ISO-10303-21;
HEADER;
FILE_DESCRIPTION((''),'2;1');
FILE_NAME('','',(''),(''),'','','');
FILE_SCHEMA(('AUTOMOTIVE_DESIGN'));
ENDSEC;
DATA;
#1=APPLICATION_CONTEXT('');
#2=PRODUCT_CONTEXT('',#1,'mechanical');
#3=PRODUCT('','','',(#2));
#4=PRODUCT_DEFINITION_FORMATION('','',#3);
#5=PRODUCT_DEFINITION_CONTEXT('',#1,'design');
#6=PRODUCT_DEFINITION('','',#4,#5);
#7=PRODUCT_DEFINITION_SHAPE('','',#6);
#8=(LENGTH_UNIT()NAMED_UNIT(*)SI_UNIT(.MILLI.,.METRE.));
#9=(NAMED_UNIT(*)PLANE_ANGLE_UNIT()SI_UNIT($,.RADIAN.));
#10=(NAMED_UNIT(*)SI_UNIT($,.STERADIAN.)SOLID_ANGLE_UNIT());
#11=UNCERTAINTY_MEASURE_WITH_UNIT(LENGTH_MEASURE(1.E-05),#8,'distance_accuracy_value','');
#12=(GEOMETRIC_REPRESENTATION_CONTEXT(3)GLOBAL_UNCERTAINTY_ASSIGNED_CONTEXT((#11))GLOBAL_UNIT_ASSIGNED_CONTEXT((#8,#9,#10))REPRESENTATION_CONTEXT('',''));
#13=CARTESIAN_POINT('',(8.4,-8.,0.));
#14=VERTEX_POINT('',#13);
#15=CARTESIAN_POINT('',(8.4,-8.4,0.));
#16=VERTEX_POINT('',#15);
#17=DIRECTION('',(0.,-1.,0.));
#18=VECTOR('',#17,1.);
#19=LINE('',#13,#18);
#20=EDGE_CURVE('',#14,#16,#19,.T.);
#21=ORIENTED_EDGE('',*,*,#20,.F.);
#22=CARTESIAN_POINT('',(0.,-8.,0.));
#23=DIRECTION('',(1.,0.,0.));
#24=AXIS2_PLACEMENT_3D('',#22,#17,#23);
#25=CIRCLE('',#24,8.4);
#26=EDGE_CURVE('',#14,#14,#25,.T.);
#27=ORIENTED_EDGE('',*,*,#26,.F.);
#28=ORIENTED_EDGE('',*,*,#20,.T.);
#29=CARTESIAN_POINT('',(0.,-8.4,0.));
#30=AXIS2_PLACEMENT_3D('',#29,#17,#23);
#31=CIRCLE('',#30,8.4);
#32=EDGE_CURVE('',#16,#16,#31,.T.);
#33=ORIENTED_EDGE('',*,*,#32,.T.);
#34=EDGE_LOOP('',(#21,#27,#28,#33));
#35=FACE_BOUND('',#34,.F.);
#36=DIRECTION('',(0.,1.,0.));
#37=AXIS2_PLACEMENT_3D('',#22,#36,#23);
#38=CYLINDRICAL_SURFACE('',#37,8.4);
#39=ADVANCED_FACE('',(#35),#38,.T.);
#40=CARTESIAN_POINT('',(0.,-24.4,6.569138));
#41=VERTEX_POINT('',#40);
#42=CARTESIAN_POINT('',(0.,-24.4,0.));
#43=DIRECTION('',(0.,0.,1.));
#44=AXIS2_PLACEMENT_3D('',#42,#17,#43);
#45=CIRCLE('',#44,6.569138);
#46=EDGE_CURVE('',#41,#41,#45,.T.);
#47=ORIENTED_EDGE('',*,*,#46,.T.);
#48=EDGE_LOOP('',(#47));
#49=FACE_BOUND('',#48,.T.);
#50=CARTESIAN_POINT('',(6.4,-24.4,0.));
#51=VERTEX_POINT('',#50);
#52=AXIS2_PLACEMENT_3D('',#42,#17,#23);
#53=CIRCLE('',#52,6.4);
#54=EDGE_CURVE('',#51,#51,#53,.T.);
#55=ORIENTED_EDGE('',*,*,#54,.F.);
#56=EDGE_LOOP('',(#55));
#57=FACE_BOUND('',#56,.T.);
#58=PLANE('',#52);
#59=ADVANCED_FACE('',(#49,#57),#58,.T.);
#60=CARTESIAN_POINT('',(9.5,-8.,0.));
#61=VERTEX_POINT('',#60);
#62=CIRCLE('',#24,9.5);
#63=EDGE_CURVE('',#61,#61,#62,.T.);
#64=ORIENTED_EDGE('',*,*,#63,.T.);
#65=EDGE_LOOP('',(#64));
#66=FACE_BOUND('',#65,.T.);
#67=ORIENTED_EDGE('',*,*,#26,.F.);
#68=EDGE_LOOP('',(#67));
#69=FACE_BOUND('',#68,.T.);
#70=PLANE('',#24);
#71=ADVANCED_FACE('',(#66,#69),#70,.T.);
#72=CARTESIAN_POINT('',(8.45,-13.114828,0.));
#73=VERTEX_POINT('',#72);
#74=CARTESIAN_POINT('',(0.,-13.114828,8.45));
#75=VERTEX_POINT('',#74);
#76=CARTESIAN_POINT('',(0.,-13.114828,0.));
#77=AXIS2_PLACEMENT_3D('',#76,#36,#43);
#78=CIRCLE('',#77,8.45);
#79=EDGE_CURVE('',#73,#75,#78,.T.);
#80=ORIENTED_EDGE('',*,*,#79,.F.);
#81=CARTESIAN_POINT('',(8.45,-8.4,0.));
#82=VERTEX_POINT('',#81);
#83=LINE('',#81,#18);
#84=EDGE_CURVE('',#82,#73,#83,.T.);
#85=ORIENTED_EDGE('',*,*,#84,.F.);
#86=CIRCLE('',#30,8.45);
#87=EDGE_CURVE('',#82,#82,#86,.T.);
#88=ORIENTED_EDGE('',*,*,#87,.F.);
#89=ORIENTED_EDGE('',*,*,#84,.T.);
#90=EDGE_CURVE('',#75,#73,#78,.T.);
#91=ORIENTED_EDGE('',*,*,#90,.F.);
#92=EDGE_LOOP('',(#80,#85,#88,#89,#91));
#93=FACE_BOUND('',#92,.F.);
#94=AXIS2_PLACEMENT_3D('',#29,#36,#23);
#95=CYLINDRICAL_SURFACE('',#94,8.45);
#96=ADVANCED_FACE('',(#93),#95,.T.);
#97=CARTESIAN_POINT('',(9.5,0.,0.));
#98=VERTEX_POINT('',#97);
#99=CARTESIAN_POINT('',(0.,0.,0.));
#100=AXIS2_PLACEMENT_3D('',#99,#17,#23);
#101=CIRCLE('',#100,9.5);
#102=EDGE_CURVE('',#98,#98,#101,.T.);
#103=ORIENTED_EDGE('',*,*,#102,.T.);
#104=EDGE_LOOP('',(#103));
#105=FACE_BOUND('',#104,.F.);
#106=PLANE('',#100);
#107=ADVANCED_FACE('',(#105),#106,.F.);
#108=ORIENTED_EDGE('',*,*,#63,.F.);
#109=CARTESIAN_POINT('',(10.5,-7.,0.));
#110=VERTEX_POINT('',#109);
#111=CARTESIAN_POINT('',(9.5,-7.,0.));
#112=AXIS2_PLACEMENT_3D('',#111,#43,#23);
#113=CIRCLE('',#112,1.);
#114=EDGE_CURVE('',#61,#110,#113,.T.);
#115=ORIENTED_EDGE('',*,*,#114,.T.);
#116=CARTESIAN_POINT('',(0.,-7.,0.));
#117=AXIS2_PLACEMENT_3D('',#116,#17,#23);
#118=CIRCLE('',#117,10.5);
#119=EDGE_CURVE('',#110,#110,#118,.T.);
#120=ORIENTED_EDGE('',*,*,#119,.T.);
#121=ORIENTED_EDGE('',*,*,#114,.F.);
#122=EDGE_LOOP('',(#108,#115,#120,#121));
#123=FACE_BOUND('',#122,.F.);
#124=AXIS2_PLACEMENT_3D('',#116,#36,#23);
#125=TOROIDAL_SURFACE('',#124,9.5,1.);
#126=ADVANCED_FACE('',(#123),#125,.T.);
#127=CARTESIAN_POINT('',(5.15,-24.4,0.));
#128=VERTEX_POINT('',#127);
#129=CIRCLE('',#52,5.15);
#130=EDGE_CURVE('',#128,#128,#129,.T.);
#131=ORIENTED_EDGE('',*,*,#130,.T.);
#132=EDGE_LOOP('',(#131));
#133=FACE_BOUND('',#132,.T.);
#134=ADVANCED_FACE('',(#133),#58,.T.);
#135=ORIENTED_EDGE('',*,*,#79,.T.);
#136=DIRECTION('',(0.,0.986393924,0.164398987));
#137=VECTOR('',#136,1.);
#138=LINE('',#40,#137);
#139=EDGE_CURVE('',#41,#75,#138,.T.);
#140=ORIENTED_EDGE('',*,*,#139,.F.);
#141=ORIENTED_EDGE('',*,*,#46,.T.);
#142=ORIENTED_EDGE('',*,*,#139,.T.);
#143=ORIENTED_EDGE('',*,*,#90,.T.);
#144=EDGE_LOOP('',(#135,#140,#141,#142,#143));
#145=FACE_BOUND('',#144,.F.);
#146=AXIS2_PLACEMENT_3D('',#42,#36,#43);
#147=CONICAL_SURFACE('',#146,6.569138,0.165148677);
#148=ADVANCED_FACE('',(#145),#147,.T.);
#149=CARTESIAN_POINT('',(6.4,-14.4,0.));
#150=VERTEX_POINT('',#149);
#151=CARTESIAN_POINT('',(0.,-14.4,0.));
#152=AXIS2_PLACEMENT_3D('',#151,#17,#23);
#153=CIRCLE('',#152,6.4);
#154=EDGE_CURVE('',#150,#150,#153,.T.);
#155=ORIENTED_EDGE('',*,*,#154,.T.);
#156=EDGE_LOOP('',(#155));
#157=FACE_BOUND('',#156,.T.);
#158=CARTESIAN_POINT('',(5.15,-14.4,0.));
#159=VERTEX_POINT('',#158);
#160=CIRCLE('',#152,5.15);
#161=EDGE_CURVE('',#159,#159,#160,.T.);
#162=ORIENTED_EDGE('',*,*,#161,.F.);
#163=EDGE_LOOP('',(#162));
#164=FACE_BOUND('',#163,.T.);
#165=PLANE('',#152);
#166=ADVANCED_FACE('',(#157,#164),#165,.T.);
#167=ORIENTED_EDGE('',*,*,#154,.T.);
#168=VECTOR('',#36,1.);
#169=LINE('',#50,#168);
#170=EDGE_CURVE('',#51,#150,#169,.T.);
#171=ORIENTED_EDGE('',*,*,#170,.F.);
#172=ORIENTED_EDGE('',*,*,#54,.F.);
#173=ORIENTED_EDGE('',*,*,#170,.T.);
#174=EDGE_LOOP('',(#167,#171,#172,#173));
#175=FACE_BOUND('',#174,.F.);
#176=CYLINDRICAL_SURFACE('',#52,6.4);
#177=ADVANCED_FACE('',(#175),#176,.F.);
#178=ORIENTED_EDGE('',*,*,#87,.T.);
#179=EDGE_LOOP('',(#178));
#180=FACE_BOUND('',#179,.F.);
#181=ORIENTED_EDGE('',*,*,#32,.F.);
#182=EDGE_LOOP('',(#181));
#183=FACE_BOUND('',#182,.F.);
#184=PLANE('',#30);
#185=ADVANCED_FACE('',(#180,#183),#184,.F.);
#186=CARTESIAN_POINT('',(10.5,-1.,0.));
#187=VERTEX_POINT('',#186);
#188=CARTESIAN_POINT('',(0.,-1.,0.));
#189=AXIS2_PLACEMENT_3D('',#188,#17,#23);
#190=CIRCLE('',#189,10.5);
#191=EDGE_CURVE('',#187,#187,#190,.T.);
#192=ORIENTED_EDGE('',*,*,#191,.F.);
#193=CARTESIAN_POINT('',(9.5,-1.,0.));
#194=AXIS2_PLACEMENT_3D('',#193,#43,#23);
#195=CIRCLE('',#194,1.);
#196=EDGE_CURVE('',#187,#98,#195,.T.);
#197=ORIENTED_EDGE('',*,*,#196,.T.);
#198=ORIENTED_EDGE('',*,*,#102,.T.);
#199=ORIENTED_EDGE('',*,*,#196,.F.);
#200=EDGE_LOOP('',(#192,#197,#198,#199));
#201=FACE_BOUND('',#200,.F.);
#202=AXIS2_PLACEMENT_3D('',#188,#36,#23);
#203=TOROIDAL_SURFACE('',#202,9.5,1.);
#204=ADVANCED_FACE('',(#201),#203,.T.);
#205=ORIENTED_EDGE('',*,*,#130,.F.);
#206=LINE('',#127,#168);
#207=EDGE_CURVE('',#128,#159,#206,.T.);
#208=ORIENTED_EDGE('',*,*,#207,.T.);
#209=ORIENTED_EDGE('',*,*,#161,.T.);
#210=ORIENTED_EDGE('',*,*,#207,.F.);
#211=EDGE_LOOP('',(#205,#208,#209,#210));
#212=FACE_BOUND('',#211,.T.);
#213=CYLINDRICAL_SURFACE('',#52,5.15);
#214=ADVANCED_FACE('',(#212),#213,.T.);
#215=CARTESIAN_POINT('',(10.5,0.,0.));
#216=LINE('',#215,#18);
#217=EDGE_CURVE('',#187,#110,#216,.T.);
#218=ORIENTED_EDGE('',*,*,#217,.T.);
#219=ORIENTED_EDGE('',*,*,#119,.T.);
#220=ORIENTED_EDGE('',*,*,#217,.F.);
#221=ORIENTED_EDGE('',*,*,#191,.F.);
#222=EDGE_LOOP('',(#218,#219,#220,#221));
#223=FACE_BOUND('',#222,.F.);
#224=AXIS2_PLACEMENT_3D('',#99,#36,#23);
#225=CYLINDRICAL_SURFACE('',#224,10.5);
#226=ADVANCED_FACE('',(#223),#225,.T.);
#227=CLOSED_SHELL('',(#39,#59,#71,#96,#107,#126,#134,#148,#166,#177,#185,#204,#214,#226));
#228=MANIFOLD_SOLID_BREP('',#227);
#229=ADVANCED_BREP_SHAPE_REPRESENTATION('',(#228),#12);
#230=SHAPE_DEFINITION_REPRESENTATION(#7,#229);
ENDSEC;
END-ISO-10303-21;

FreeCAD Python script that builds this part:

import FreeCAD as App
import Part
import Sketcher
from FreeCAD import Vector


def edges_at(feature, points):
    """Names of the edges that pass closest to the given points."""
    edges = feature.Shape.Edges
    near = lambda p: min(range(len(edges)), key=lambda i: edges[i].distToShape(Part.Vertex(*p))[0])
    return sorted({f"Edge{near(p) + 1}" for p in points})


def add_polygon(sketch, points):
    """Adds a closed chain of lines whose ends are joined by coincident constraints."""
    first, n = sketch.GeometryCount, len(points)
    for a, b in zip(points, points[1:] + points[:1]):
        sketch.addGeometry(Part.LineSegment(App.Vector(*a, 0), App.Vector(*b, 0)), False)
    for i in range(n):
        sketch.addConstraint(Sketcher.Constraint("Coincident", first + i, 2, first + (i + 1) % n, 1))

doc = App.newDocument("Part")
body = doc.addObject("PartDesign::Body", "Body")

# Sketch on XZ plane
sketch1 = body.newObject("Sketcher::SketchObject", "Sketch")
sketch1.AttachmentSupport = (doc.getObject("XZ_Plane"), [""])
sketch1.MapMode = "FlatFace"
sketch1.addGeometry(Part.Circle(Vector(0, 0, 0), Vector(0, 0, 1), 10), False)
sketch1.addConstraint([
    Sketcher.Constraint("Coincident", 0, 3, -1, 1),
    Sketcher.Constraint("Diameter", 0, 21.0),
])
pad1 = body.newObject("PartDesign::Pad", "Pad")
pad1.Profile = sketch1
pad1.Length = 8

# Sketch on XZ plane
sketch2 = body.newObject("Sketcher::SketchObject", "Sketch001")
sketch2.AttachmentSupport = (doc.getObject("XZ_Plane"), [""])
sketch2.MapMode = "FlatFace"
sketch2.AttachmentOffset = App.Placement(Vector(0, 0, 8), App.Rotation())
sketch2.addGeometry(Part.Circle(Vector(0, 0, 0), Vector(0, 0, 1), 8), False)
sketch2.addConstraint([
    Sketcher.Constraint("Coincident", 0, 3, -1, 1),
    Sketcher.Constraint("Diameter", 0, 16.8),
])
pad2 = body.newObject("PartDesign::Pad", "Pad001")
pad2.Profile = sketch2
pad2.Length = 0.4

# Sketch on XZ plane
sketch3 = body.newObject("Sketcher::SketchObject", "Sketch002")
sketch3.AttachmentSupport = (doc.getObject("XZ_Plane"), [""])
sketch3.MapMode = "FlatFace"
sketch3.AttachmentOffset = App.Placement(Vector(0, 0, 8.4), App.Rotation())
sketch3.addGeometry(Part.Circle(Vector(0, 0, 0), Vector(0, 0, 1), 8), False)
sketch3.addConstraint([
    Sketcher.Constraint("Coincident", 0, 3, -1, 1),
    Sketcher.Constraint("Diameter", 0, 16.9),
])
pad3 = body.newObject("PartDesign::Pad", "Pad002")
pad3.Profile = sketch3
pad3.Length = 16

# Sketch on XZ plane
sketch4 = body.newObject("Sketcher::SketchObject", "Sketch003")
sketch4.AttachmentSupport = (doc.getObject("XZ_Plane"), [""])
sketch4.MapMode = "FlatFace"
sketch4.AttachmentOffset = App.Placement(Vector(0, 0, 24.4), App.Rotation())
sketch4.addGeometry([
    Part.Circle(Vector(0, 0, 0), Vector(0, 0, 1), 6),
    Part.Circle(Vector(0, 0, 0), Vector(0, 0, 1), 5),
], False)
sketch4.addConstraint([
    Sketcher.Constraint("Coincident", 0, 3, -1, 1),
    Sketcher.Constraint("Coincident", 1, 3, -1, 1),
    Sketcher.Constraint("Diameter", 0, 12.8),
    Sketcher.Constraint("Diameter", 1, 10.3),
])
pocket1 = body.newObject("PartDesign::Pocket", "Pocket")
pocket1.Profile = sketch4
pocket1.Length = 10

# Sketch on YZ plane
sketch5 = body.newObject("Sketcher::SketchObject", "Sketch004")
sketch5.AttachmentSupport = (doc.getObject("YZ_Plane"), [""])
sketch5.MapMode = "FlatFace"
add_polygon(sketch5, [(-12.4, 8.6), (-24.4, 8.6), (-24.4, 6.6)])  # lines 0-2
sketch5.addConstraint([
    Sketcher.Constraint("Horizontal", 0),
    Sketcher.Constraint("Vertical", 1),
    Sketcher.Constraint("DistanceX", 0, 2, 0, 1, 12.0),
    Sketcher.Constraint("DistanceY", 1, 2, 1, 1, 2.0),
    Sketcher.Constraint("DistanceX", 0, 2, -1, 1, 24.4),
    Sketcher.Constraint("DistanceY", -1, 1, 0, 2, 8.569138),
])
groove = body.newObject("PartDesign::Groove", "Groove")
groove.Profile = sketch5
groove.ReferenceAxis = (sketch5, ["H_Axis"])
groove.Angle = 360
doc.recompute()

fillet = body.newObject("PartDesign::Fillet", "Fillet")
fillet.Base = (groove, edges_at(groove, [(-10.5, -8, 0), (-10.5, 0, 0)]))
fillet.Radius = 1

doc.recompute()
